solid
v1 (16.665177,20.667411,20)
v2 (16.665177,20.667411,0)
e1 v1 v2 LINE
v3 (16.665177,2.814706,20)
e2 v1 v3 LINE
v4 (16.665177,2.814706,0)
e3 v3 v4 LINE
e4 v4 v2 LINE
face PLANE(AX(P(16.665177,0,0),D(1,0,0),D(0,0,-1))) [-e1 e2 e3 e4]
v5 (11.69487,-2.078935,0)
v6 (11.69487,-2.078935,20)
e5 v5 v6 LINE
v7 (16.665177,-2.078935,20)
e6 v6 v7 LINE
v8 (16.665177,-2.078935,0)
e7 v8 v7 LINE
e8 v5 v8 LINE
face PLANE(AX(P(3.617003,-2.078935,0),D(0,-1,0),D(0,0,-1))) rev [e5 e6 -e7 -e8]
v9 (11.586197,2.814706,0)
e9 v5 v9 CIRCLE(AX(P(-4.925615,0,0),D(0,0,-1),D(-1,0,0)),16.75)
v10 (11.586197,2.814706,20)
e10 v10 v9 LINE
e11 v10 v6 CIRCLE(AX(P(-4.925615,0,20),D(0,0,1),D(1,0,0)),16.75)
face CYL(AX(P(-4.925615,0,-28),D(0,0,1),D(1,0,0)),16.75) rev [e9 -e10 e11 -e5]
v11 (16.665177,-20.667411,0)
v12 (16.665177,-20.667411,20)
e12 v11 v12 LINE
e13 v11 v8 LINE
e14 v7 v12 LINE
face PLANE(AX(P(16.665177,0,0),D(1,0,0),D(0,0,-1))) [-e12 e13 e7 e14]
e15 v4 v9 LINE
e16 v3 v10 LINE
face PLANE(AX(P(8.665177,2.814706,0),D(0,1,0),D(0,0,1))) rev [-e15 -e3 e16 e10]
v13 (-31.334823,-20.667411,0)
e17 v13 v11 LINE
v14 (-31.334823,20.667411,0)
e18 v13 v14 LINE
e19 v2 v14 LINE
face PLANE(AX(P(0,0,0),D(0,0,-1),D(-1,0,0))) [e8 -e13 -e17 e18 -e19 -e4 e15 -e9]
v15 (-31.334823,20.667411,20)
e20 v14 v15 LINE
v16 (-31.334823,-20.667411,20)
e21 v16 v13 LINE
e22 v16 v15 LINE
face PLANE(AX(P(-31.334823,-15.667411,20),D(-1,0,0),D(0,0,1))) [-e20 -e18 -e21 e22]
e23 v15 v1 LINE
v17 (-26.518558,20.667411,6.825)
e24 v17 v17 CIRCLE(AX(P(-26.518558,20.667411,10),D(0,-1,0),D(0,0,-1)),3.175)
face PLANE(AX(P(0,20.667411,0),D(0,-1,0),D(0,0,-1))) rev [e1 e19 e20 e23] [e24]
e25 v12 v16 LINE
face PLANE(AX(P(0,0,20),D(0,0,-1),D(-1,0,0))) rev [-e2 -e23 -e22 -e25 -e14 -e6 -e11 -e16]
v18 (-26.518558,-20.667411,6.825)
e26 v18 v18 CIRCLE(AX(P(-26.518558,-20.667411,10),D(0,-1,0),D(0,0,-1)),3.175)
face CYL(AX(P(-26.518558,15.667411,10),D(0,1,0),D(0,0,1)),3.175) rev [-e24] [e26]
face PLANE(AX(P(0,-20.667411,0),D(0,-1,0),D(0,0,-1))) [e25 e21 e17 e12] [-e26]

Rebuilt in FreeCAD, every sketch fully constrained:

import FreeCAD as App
import Part
import Sketcher
Q = App.Units.Quantity

doc = App.newDocument("Part")
body = doc.addObject("PartDesign::Body", "Body")

sketch1 = doc.addObject("Sketcher::SketchObject", "Sketch")
body.addObject(sketch1)
sketch1.AttachmentSupport = (doc.XY_Plane, [""])
sketch1.MapMode = "FlatFace"
sketch1.addGeometry([
    Part.LineSegment(App.Vector(9, 16, 0), App.Vector(9, -16, 0)),
    Part.LineSegment(App.Vector(9, -16, 0), App.Vector(-31, -16, 0)),
    Part.LineSegment(App.Vector(-31, -16, 0), App.Vector(-31, 16, 0)),
    Part.LineSegment(App.Vector(-31, 16, 0), App.Vector(9, 16, 0)),
], False)
sketch1.addConstraint([
    Sketcher.Constraint("Coincident", 0, 2, 1, 1),
    Sketcher.Constraint("Coincident", 1, 2, 2, 1),
    Sketcher.Constraint("Coincident", 2, 2, 3, 1),
    Sketcher.Constraint("Coincident", 3, 2, 0, 1),
    Sketcher.Constraint("Vertical", 0),
    Sketcher.Constraint("Horizontal", 1),
    Sketcher.Constraint("Vertical", 2),
    Sketcher.Constraint("Horizontal", 3),
    Sketcher.Constraint("DistanceX", 1, 2, 1, 1, Q("40 mm")),
    Sketcher.Constraint("DistanceY", 0, 2, 0, 1, Q("31.334823 mm")),
    Sketcher.Constraint("DistanceY", 0, 2, -1, 1, Q("15.667411 mm")),
    Sketcher.Constraint("DistanceX", -1, 1, 0, 2, Q("8.665177 mm")),
])
pad1 = doc.addObject("PartDesign::Pad", "Pad")
body.addObject(pad1)
pad1.Profile = sketch1
pad1.Length = 20

sketch2 = doc.addObject("Sketcher::SketchObject", "Sketch001")
body.addObject(sketch2)
sketch2.AttachmentSupport = (doc.XY_Plane, [""])
sketch2.MapMode = "FlatFace"
sketch2.AttachmentOffset = App.Placement(App.Vector(0, 0, 20), App.Rotation())
sketch2.addGeometry([
    Part.LineSegment(App.Vector(3.6, 2.8, 0), App.Vector(3.6, -2.1, 0)),
    Part.LineSegment(App.Vector(3.6, -2.1, 0), App.Vector(8.7, -2.1, 0)),
    Part.LineSegment(App.Vector(8.7, -2.1, 0), App.Vector(8.7, 2.8, 0)),
    Part.LineSegment(App.Vector(8.7, 2.8, 0), App.Vector(3.6, 2.8, 0)),
], False)
sketch2.addConstraint([
    Sketcher.Constraint("Coincident", 0, 2, 1, 1),
    Sketcher.Constraint("Coincident", 1, 2, 2, 1),
    Sketcher.Constraint("Coincident", 2, 2, 3, 1),
    Sketcher.Constraint("Coincident", 3, 2, 0, 1),
    Sketcher.Constraint("Vertical", 0),
    Sketcher.Constraint("Horizontal", 1),
    Sketcher.Constraint("Vertical", 2),
    Sketcher.Constraint("Horizontal", 3),
    Sketcher.Constraint("DistanceY", 0, 2, 0, 1, Q("4.893642 mm")),
    Sketcher.Constraint("DistanceX", 1, 1, 1, 2, Q("5.048175 mm")),
    Sketcher.Constraint("DistanceX", -1, 1, 0, 2, Q("3.617003 mm")),
    Sketcher.Constraint("DistanceY", 0, 2, -1, 1, Q("2.078935 mm")),
])
pocket1 = doc.addObject("PartDesign::Pocket", "Pocket")
body.addObject(pocket1)
pocket1.Profile = sketch2
pocket1.Type = "ThroughAll"

sketch3 = doc.addObject("Sketcher::SketchObject", "Sketch002")
body.addObject(sketch3)
sketch3.AttachmentSupport = (doc.XZ_Plane, [""])
sketch3.MapMode = "FlatFace"
sketch3.AttachmentOffset = App.Placement(App.Vector(0, 0, -15.667411), App.Rotation())
sketch3.addGeometry(Part.Circle(App.Vector(-26.5, 10, 0), App.Vector(0, 0, 1), 3.2), False)
sketch3.addConstraint([
    Sketcher.Constraint("Diameter", 0, Q("6.35 mm")),
    Sketcher.Constraint("DistanceY", -1, 1, 0, 3, Q("10 mm")),
    Sketcher.Constraint("DistanceX", 0, 3, -1, 1, Q("26.518558 mm")),
])
doc.recompute()
hole = doc.addObject("PartDesign::Hole", "Hole")
body.addObject(hole)
hole.Profile = sketch3
hole.ThreadType = "None"
hole.Diameter = 6.35
hole.DepthType = "ThroughAll"
hole.Reversed = True

sketch4 = doc.addObject("Sketcher::SketchObject", "Sketch003")
body.addObject(sketch4)
sketch4.AttachmentSupport = (doc.XY_Plane, [""])
sketch4.MapMode = "FlatFace"
sketch4.addGeometry(Part.Circle(App.Vector(-9, 0, 0), App.Vector(0, 0, 1), 13), False)
sketch4.addConstraint([
    Sketcher.Constraint("PointOnObject", 0, 3, -1),
    Sketcher.Constraint("Diameter", 0, Q("25.4 mm")),
    Sketcher.Constraint("DistanceX", 0, 3, -1, 1, Q("8.767354 mm")),
])
doc.recompute()
hole2 = doc.addObject("PartDesign::Hole", "Hole001")
body.addObject(hole2)
hole2.Profile = sketch4
hole2.ThreadType = "None"
hole2.Diameter = 25.4
hole2.DepthType = "ThroughAll"
hole2.Reversed = True

sketch5 = doc.addObject("Sketcher::SketchObject", "Sketch004")
body.addObject(sketch5)
sketch5.AttachmentSupport = (doc.YZ_Plane, [""])
sketch5.MapMode = "FlatFace"
sketch5.AttachmentOffset = App.Placement(App.Vector(0, 0, 8.665177), App.Rotation())
sketch5.addGeometry([
    Part.LineSegment(App.Vector(16, 20, 0), App.Vector(3, 20, 0)),
    Part.LineSegment(App.Vector(3, 20, 0), App.Vector(3, 0, 0)),
    Part.LineSegment(App.Vector(3, 0, 0), App.Vector(16, 0, 0)),
    Part.LineSegment(App.Vector(16, 0, 0), App.Vector(16, 20, 0)),
    Part.LineSegment(App.Vector(-2, 20, 0), App.Vector(-16, 20, 0)),
    Part.LineSegment(App.Vector(-16, 20, 0), App.Vector(-16, 0, 0)),
    Part.LineSegment(App.Vector(-16, 0, 0), App.Vector(-2, 0, 0)),
    Part.LineSegment(App.Vector(-2, 0, 0), App.Vector(-2, 20, 0)),
], False)
sketch5.addConstraint([
    Sketcher.Constraint("Coincident", 0, 2, 1, 1),
    Sketcher.Constraint("Coincident", 1, 2, 2, 1),
    Sketcher.Constraint("Coincident", 2, 2, 3, 1),
    Sketcher.Constraint("Coincident", 3, 2, 0, 1),
    Sketcher.Constraint("Coincident", 4, 2, 5, 1),
    Sketcher.Constraint("Coincident", 5, 2, 6, 1),
    Sketcher.Constraint("Coincident", 6, 2, 7, 1),
    Sketcher.Constraint("Coincident", 7, 2, 4, 1),
    Sketcher.Constraint("Horizontal", 0),
    Sketcher.Constraint("Vertical", 1),
    Sketcher.Constraint("Horizontal", 2),
    Sketcher.Constraint("Vertical", 3),
    Sketcher.Constraint("Horizontal", 4),
    Sketcher.Constraint("Vertical", 5),
    Sketcher.Constraint("Horizontal", 6),
    Sketcher.Constraint("Vertical", 7),
    Sketcher.Constraint("Symmetric", 2, 2, 5, 2, -1, 1),
    Sketcher.Constraint("PointOnObject", 1, 2, -1),
    Sketcher.Constraint("Horizontal", 3, 2, 4, 2),
    Sketcher.Constraint("DistanceY", 1, 2, 1, 1, Q("20 mm")),
    Sketcher.Constraint("DistanceX", 0, 2, 0, 1, Q("12.852705 mm")),
    Sketcher.Constraint("DistanceX", 4, 2, 4, 1, Q("13.588476 mm")),
    Sketcher.Constraint("DistanceX", -1, 1, 2, 2, Q("15.667411 mm")),
])
pad2 = doc.addObject("PartDesign::Pad", "Pad001")
body.addObject(pad2)
pad2.Profile = sketch5
pad2.Length = 8

sketch6 = doc.addObject("Sketcher::SketchObject", "Sketch005")
body.addObject(sketch6)
sketch6.AttachmentSupport = (doc.XZ_Plane, [""])
sketch6.MapMode = "FlatFace"
sketch6.AttachmentOffset = App.Placement(App.Vector(0, 0, -15.667411), App.Rotation())
sketch6.addGeometry([
    Part.LineSegment(App.Vector(-31, 0, 0), App.Vector(-31, 20, 0)),
    Part.LineSegment(App.Vector(-31, 20, 0), App.Vector(17, 20, 0)),
    Part.LineSegment(App.Vector(17, 20, 0), App.Vector(17, 0, 0)),
    Part.LineSegment(App.Vector(17, 0, 0), App.Vector(-31, 0, 0)),
], False)
sketch6.addConstraint([
    Sketcher.Constraint("Coincident", 0, 2, 1, 1),
    Sketcher.Constraint("Coincident", 1, 2, 2, 1),
    Sketcher.Constraint("Coincident", 2, 2, 3, 1),
    Sketcher.Constraint("Coincident", 3, 2, 0, 1),
    Sketcher.Constraint("Vertical", 0),
    Sketcher.Constraint("Horizontal", 1),
    Sketcher.Constraint("Vertical", 2),
    Sketcher.Constraint("Horizontal", 3),
    Sketcher.Constraint("PointOnObject", 2, 2, -1),
    Sketcher.Constraint("DistanceX", 1, 1, 1, 2, Q("48 mm")),
    Sketcher.Constraint("DistanceY", 0, 1, 0, 2, Q("20 mm")),
    Sketcher.Constraint("DistanceX", 0, 2, -1, 1, Q("31.334823 mm")),
])
pad3 = doc.addObject("PartDesign::Pad", "Pad002")
body.addObject(pad3)
pad3.Profile = sketch6
pad3.Length = 5
pad3.Reversed = True

sketch7 = doc.addObject("Sketcher::SketchObject", "Sketch006")
body.addObject(sketch7)
sketch7.AttachmentSupport = (doc.XZ_Plane, [""])
sketch7.MapMode = "FlatFace"
sketch7.AttachmentOffset = App.Placement(App.Vector(0, 0, 15.667411), App.Rotation())
sketch7.addGeometry(Part.Circle(App.Vector(-26.5, 10, 0), App.Vector(0, 0, 1), 3.2), False)
sketch7.addConstraint([
    Sketcher.Constraint("Diameter", 0, Q("6.35 mm")),
    Sketcher.Constraint("DistanceY", -1, 1, 0, 3, Q("10 mm")),
    Sketcher.Constraint("DistanceX", 0, 3, -1, 1, Q("26.518558 mm")),
])
pocket2 = doc.addObject("PartDesign::Pocket", "Pocket001")
body.addObject(pocket2)
pocket2.Profile = sketch7
pocket2.Length = 43

sketch8 = doc.addObject("Sketcher::SketchObject", "Sketch007")
body.addObject(sketch8)
sketch8.AttachmentSupport = (doc.XZ_Plane, [""])
sketch8.MapMode = "FlatFace"
sketch8.AttachmentOffset = App.Placement(App.Vector(0, 0, 15.667411), App.Rotation())
sketch8.addGeometry([
    Part.LineSegment(App.Vector(-31, 20, 0), App.Vector(-31, 0, 0)),
    Part.LineSegment(App.Vector(-31, 0, 0), App.Vector(17, 0, 0)),
    Part.LineSegment(App.Vector(17, 0, 0), App.Vector(17, 20, 0)),
    Part.LineSegment(App.Vector(17, 20, 0), App.Vector(-31, 20, 0)),
], False)
sketch8.addConstraint([
    Sketcher.Constraint("Coincident", 0, 2, 1, 1),
    Sketcher.Constraint("Coincident", 1, 2, 2, 1),
    Sketcher.Constraint("Coincident", 2, 2, 3, 1),
    Sketcher.Constraint("Coincident", 3, 2, 0, 1),
    Sketcher.Constraint("Vertical", 0),
    Sketcher.Constraint("Horizontal", 1),
    Sketcher.Constraint("Vertical", 2),
    Sketcher.Constraint("Horizontal", 3),
    Sketcher.Constraint("PointOnObject", 0, 2, -1),
    Sketcher.Constraint("DistanceX", 1, 1, 1, 2, Q("48 mm")),
    Sketcher.Constraint("DistanceY", 0, 2, 0, 1, Q("20 mm")),
    Sketcher.Constraint("DistanceX", 0, 2, -1, 1, Q("31.334823 mm")),
])
pad4 = doc.addObject("PartDesign::Pad", "Pad003")
body.addObject(pad4)
pad4.Profile = sketch8
pad4.Length = 5

sketch9 = doc.addObject("Sketcher::SketchObject", "Sketch008")
body.addObject(sketch9)
sketch9.AttachmentSupport = (doc.XZ_Plane, [""])
sketch9.MapMode = "FlatFace"
sketch9.AttachmentOffset = App.Placement(App.Vector(0, 0, 27.332589), App.Rotation())
sketch9.addGeometry(Part.Circle(App.Vector(-26.5, 10, 0), App.Vector(0, 0, 1), 3.2), False)
sketch9.addConstraint([
    Sketcher.Constraint("Diameter", 0, Q("6.35 mm")),
    Sketcher.Constraint("DistanceY", -1, 1, 0, 3, Q("10 mm")),
    Sketcher.Constraint("DistanceX", 0, 3, -1, 1, Q("26.518558 mm")),
])
pocket3 = doc.addObject("PartDesign::Pocket", "Pocket002")
body.addObject(pocket3)
pocket3.Profile = sketch9
pocket3.Length = 48

sketch10 = doc.addObject("Sketcher::SketchObject", "Sketch009")
body.addObject(sketch10)
sketch10.AttachmentSupport = (doc.XY_Plane, [""])
sketch10.MapMode = "FlatFace"
sketch10.AttachmentOffset = App.Placement(App.Vector(0, 0, 20), App.Rotation())
sketch10.addGeometry(Part.Circle(App.Vector(-5, 0, 0), App.Vector(0, 0, 1), 17), False)
sketch10.addConstraint([
    Sketcher.Constraint("PointOnObject", 0, 3, -1),
    Sketcher.Constraint("Diameter", 0, Q("33.5 mm")),
    Sketcher.Constraint("DistanceX", 0, 3, -1, 1, Q("4.925615 mm")),
])
pocket4 = doc.addObject("PartDesign::Pocket", "Pocket003")
body.addObject(pocket4)
pocket4.Profile = sketch10
pocket4.Length = 48

doc.recompute()
